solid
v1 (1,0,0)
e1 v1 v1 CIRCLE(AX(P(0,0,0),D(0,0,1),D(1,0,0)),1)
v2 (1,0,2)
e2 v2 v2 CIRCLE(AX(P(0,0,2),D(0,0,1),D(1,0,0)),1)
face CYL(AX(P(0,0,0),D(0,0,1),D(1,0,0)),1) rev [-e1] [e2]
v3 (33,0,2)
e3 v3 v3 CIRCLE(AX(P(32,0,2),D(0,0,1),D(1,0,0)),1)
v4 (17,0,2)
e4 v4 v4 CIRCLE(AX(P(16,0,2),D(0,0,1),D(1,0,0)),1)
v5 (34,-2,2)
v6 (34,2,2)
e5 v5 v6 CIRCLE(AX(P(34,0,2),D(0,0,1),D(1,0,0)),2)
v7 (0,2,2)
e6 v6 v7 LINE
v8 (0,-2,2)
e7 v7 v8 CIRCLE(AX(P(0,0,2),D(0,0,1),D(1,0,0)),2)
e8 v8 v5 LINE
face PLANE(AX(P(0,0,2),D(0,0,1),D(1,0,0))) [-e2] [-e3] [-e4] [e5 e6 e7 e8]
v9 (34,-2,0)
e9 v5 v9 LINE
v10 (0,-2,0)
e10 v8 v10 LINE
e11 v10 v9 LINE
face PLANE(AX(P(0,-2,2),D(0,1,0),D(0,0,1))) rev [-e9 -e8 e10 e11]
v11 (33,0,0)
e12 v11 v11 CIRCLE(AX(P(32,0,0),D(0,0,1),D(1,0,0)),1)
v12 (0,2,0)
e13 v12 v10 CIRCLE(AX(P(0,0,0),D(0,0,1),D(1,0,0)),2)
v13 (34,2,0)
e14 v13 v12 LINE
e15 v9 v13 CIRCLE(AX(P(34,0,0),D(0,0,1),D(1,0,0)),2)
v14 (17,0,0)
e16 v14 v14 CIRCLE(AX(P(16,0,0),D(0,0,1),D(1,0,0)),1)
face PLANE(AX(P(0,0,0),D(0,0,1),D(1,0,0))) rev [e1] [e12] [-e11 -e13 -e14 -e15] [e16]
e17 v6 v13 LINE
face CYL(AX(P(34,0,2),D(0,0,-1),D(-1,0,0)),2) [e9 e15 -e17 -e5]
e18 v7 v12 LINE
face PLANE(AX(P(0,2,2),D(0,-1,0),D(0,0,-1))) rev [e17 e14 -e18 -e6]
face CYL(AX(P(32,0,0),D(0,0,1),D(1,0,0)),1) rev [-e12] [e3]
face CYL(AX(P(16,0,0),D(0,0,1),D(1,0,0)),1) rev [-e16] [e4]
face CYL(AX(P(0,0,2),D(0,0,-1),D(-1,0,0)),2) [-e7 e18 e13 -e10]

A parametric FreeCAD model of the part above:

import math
import FreeCAD as App
import Part
import Sketcher
from FreeCAD import Vector
Q = App.Units.Quantity

doc = App.newDocument("Part")
body = doc.addObject("PartDesign::Body", "Body")

# Sketch on XY plane
sketch1 = body.newObject("Sketcher::SketchObject", "Sketch")
sketch1.AttachmentSupport = (doc.getObject("XY_Plane"), [""])
sketch1.MapMode = "FlatFace"
sketch1.addGeometry(Part.LineSegment(Vector(34, 2, 0), Vector(0, 2, 0)), False)
sketch1.addGeometry(Part.ArcOfCircle(Part.Circle(Vector(0, 0, 0), Vector(0, 0, 1), 2), math.radians(90), math.radians(270)), False)
sketch1.addGeometry(Part.LineSegment(Vector(0, -2, 0), Vector(34, -2, 0)), False)
sketch1.addGeometry(Part.ArcOfCircle(Part.Circle(Vector(34, 0, 0), Vector(0, 0, 1), 2), math.radians(-90), math.radians(90)), False)
sketch1.addConstraint(Sketcher.Constraint("Tangent", 0, 2, 1, 1))
sketch1.addConstraint(Sketcher.Constraint("Tangent", 1, 2, 2, 1))
sketch1.addConstraint(Sketcher.Constraint("Tangent", 2, 2, 3, 1))
sketch1.addConstraint(Sketcher.Constraint("Tangent", 3, 2, 0, 1))
sketch1.addConstraint(Sketcher.Constraint("Horizontal", 0))
sketch1.addConstraint(Sketcher.Constraint("Horizontal", 2))
sketch1.addConstraint(Sketcher.Constraint("Coincident", 1, 3, -1, 1))
sketch1.addConstraint(Sketcher.Constraint("Radius", 1, Q("2 mm")))
sketch1.addConstraint(Sketcher.Constraint("DistanceX", 0, 2, 0, 1, Q("34 mm")))
pad1 = body.newObject("PartDesign::Pad", "Pad")
pad1.Profile = sketch1
pad1.Length = 2

# Sketch on XY plane
sketch2 = body.newObject("Sketcher::SketchObject", "Sketch001")
sketch2.AttachmentSupport = (doc.getObject("XY_Plane"), [""])
sketch2.MapMode = "FlatFace"
sketch2.AttachmentOffset = App.Placement(Vector(0, 0, 2), App.Rotation())
sketch2.addGeometry(Part.Circle(Vector(0, 0, 0), Vector(0, 0, 1), 1), False)
sketch2.addGeometry(Part.Circle(Vector(16, 0, 0), Vector(0, 0, 1), 1), False)
sketch2.addGeometry(Part.Circle(Vector(32, 0, 0), Vector(0, 0, 1), 1), False)
sketch2.addConstraint(Sketcher.Constraint("Coincident", 0, 3, -1, 1))
sketch2.addConstraint(Sketcher.Constraint("Equal", 0, 1))
sketch2.addConstraint(Sketcher.Constraint("Equal", 1, 2))
sketch2.addConstraint(Sketcher.Constraint("PointOnObject", 1, 3, -1))
sketch2.addConstraint(Sketcher.Constraint("PointOnObject", 2, 3, -1))
sketch2.addConstraint(Sketcher.Constraint("Diameter", 0, Q("2 mm")))
sketch2.addConstraint(Sketcher.Constraint("DistanceX", -1, 1, 1, 3, Q("16 mm")))
sketch2.addConstraint(Sketcher.Constraint("DistanceX", -1, 1, 2, 3, Q("32 mm")))
pocket1 = body.newObject("PartDesign::Pocket", "Pocket")
pocket1.Profile = sketch2
pocket1.Length = 2

doc.recompute()
